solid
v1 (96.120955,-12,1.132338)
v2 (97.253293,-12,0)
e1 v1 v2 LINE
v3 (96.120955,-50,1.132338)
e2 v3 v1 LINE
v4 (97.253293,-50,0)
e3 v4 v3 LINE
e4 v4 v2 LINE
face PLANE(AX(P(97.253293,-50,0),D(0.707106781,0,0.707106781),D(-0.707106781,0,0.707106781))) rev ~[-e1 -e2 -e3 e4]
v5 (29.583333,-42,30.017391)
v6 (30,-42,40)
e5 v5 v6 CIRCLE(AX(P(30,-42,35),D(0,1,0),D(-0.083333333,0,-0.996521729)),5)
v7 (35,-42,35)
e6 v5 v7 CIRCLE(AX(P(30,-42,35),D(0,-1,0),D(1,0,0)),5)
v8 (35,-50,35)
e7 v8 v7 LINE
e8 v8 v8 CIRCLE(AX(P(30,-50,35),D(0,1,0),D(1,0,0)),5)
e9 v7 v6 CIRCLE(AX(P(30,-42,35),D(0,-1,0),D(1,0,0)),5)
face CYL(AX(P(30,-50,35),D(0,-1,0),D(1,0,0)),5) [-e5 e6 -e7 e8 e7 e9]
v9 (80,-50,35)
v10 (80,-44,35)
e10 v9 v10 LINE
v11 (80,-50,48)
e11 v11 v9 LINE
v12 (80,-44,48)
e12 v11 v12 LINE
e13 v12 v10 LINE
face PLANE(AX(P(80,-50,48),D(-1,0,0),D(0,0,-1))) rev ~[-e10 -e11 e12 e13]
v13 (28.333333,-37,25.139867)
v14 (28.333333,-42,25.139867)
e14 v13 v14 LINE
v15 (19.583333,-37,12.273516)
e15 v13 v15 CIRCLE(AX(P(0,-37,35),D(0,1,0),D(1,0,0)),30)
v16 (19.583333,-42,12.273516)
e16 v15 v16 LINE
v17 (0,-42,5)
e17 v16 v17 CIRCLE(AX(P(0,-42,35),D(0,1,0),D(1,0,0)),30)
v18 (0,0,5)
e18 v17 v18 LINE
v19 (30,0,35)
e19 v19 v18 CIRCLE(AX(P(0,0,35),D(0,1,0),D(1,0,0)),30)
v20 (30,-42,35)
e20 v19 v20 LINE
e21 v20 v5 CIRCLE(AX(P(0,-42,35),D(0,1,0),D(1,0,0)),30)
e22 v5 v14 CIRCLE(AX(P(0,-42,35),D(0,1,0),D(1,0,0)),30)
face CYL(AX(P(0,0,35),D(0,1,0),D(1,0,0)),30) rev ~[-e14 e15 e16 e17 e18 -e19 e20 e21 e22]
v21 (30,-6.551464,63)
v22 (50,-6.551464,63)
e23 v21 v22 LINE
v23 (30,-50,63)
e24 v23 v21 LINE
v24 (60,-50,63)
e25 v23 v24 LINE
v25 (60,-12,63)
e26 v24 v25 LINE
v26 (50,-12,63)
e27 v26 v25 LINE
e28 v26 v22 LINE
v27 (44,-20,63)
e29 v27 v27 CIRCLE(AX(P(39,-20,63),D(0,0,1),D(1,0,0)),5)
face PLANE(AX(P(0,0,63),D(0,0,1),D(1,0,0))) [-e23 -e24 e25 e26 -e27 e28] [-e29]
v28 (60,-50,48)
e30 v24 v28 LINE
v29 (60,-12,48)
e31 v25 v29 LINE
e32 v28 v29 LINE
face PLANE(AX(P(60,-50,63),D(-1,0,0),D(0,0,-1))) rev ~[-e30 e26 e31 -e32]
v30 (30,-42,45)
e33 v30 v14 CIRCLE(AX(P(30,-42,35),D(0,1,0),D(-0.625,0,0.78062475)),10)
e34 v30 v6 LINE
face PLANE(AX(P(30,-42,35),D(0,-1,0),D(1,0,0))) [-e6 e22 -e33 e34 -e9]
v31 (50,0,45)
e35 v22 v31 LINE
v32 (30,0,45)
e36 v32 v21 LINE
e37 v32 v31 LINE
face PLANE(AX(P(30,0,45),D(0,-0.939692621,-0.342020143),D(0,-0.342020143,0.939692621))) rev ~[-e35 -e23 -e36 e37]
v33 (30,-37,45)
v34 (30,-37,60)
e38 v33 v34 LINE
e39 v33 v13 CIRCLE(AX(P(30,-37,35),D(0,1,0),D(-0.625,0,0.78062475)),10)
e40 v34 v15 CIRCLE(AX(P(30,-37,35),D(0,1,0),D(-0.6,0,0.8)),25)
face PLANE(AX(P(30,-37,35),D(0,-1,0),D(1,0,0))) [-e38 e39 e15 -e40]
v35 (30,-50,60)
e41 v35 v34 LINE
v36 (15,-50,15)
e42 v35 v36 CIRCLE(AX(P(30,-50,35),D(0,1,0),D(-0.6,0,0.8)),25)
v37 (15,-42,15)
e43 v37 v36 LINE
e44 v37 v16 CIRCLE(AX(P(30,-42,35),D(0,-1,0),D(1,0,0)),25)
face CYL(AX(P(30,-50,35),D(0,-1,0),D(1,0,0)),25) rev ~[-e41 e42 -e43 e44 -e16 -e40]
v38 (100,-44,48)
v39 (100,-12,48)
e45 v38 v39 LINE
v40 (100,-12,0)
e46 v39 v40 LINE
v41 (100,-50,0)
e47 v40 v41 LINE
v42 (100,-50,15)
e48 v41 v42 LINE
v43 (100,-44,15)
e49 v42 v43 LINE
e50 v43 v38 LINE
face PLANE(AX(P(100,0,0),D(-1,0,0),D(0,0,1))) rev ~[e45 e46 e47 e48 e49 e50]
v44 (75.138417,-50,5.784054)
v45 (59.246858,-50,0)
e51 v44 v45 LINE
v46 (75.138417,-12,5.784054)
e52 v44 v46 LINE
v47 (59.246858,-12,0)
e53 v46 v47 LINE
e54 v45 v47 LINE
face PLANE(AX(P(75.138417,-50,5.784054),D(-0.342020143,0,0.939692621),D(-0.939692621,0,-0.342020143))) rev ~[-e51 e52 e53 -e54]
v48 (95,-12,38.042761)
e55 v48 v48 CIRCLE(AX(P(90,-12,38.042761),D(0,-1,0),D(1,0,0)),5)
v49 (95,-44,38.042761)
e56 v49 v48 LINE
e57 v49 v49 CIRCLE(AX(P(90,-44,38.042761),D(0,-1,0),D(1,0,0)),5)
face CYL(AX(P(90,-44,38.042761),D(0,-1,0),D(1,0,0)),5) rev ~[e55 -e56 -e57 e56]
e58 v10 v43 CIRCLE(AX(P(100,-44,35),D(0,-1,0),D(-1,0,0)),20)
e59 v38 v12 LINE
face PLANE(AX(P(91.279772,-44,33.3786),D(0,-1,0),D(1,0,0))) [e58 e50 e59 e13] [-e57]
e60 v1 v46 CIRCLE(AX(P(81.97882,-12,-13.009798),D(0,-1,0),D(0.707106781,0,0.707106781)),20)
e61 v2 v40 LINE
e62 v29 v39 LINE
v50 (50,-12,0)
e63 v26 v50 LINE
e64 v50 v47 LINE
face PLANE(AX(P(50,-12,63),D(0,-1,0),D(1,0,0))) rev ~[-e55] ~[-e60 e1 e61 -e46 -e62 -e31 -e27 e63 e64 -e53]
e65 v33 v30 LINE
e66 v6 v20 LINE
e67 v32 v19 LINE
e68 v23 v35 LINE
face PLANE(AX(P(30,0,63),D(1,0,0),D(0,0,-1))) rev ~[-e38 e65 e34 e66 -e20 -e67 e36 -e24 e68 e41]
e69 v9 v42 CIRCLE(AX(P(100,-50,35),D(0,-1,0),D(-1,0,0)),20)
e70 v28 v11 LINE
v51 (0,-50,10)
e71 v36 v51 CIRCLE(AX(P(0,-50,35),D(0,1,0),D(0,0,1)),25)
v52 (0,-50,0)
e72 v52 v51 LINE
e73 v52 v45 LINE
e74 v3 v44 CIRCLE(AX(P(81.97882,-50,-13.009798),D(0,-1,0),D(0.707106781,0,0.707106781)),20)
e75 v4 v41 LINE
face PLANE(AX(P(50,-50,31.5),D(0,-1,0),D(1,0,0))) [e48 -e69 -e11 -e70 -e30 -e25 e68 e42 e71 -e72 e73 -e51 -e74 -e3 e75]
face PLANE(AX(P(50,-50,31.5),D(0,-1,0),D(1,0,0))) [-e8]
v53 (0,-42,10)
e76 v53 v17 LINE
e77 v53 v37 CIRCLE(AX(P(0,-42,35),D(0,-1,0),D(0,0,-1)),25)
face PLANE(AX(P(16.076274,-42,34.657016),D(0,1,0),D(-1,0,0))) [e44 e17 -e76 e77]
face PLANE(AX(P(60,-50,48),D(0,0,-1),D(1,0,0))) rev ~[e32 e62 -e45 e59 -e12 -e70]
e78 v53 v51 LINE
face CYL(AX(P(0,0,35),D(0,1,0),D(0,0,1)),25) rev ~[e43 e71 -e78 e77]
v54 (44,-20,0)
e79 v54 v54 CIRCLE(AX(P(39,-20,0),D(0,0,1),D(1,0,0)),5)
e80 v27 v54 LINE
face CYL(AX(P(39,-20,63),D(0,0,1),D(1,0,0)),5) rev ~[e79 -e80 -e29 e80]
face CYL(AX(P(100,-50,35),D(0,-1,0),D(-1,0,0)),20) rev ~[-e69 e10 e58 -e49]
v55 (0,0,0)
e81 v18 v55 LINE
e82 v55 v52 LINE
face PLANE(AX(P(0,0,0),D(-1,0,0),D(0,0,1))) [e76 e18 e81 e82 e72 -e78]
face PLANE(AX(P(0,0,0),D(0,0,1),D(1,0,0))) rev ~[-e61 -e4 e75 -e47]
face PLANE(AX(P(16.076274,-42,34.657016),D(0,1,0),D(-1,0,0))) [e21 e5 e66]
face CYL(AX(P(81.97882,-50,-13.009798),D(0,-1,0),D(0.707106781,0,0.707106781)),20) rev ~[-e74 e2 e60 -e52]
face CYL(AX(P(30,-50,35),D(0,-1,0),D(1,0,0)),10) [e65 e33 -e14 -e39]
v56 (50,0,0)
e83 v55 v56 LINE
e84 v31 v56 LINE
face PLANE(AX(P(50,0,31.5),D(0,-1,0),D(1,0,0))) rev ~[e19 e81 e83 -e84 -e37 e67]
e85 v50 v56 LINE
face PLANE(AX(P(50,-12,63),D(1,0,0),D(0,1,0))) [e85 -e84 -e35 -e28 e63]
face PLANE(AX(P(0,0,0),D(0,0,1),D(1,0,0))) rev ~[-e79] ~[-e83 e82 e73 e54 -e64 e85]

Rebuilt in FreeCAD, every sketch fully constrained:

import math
import FreeCAD as App
import Part
import Sketcher
from FreeCAD import Vector
Q = App.Units.Quantity


def add_polygon(sketch, points):
    """Adds a closed chain of lines whose ends are joined by coincident constraints."""
    first, n = sketch.GeometryCount, len(points)
    for a, b in zip(points, points[1:] + points[:1]):
        sketch.addGeometry(Part.LineSegment(App.Vector(*a, 0), App.Vector(*b, 0)), False)
    for i in range(n):
        sketch.addConstraint(Sketcher.Constraint("Coincident", first + i, 2, first + (i + 1) % n, 1))

doc = App.newDocument("Part")
body = doc.addObject("PartDesign::Body", "Body")

# Sketch on XZ plane
sketch1 = body.newObject("Sketcher::SketchObject", "Sketch")
sketch1.AttachmentSupport = (doc.getObject("XZ_Plane"), [""])
sketch1.MapMode = "FlatFace"
add_polygon(sketch1, [(0, 63), (0, 0), (100, 0), (100, 63)])  # lines 0-3
sketch1.addConstraint([
    Sketcher.Constraint("Vertical", 0),
    Sketcher.Constraint("Horizontal", 1),
    Sketcher.Constraint("Vertical", 2),
    Sketcher.Constraint("Horizontal", 3),
    Sketcher.Constraint("Coincident", 0, 2, -1, 1),
    Sketcher.Constraint("DistanceX", 1, 1, 1, 2, 100.0),
    Sketcher.Constraint("DistanceY", 0, 2, 0, 1, 63.0),
])
pad1 = body.newObject("PartDesign::Pad", "Pad")
pad1.Profile = sketch1
pad1.Length = 50

# Sketch on XZ plane
sketch2 = body.newObject("Sketcher::SketchObject", "Sketch001")
sketch2.AttachmentSupport = (doc.getObject("XZ_Plane"), [""])
sketch2.MapMode = "FlatFace"
sketch2.AttachmentOffset = App.Placement(Vector(0, 0, 50), App.Rotation())
sketch2.addGeometry([
    Part.ArcOfCircle(Part.Circle(Vector(100, 35, 0), Vector(0, 0, 1), 20), math.radians(180), math.radians(270)),
    Part.LineSegment(Vector(100, 15, 0), Vector(100, 48, 0)),
    Part.LineSegment(Vector(100, 48, 0), Vector(80, 48, 0)),
    Part.LineSegment(Vector(80, 48, 0), Vector(80, 35, 0)),
], False)
sketch2.addConstraint([
    Sketcher.Constraint("Coincident", 0, 2, 1, 1),
    Sketcher.Constraint("Coincident", 1, 2, 2, 1),
    Sketcher.Constraint("Coincident", 2, 2, 3, 1),
    Sketcher.Constraint("Tangent", 3, 2, 0, 1),
    Sketcher.Constraint("Vertical", 1),
    Sketcher.Constraint("Horizontal", 2),
    Sketcher.Constraint("Vertical", 3),
    Sketcher.Constraint("Radius", 0, 20.0),
    Sketcher.Constraint("DistanceX", 2, 2, 2, 1, 20.0),
    Sketcher.Constraint("DistanceY", 1, 1, 1, 2, 33.0),
    Sketcher.Constraint("DistanceX", -1, 1, 0, 3, 100.0),
    Sketcher.Constraint("DistanceY", -1, 1, 0, 3, 35.0),
])
pocket1 = body.newObject("PartDesign::Pocket", "Pocket")
pocket1.Profile = sketch2
pocket1.Length = 6

# Sketch on XZ plane
sketch3 = body.newObject("Sketcher::SketchObject", "Sketch002")
sketch3.AttachmentSupport = (doc.getObject("XZ_Plane"), [""])
sketch3.MapMode = "FlatFace"
sketch3.AttachmentOffset = App.Placement(Vector(0, 0, 50), App.Rotation())
add_polygon(sketch3, [(100, 63), (60, 63), (60, 48), (100, 48)])  # lines 0-3
sketch3.addConstraint([
    Sketcher.Constraint("Horizontal", 0),
    Sketcher.Constraint("Vertical", 1),
    Sketcher.Constraint("Horizontal", 2),
    Sketcher.Constraint("Vertical", 3),
    Sketcher.Constraint("DistanceX", 0, 2, 0, 1, 40.0),
    Sketcher.Constraint("DistanceY", 1, 2, 1, 1, 15.0),
    Sketcher.Constraint("DistanceX", -1, 1, 0, 2, 60.0),
    Sketcher.Constraint("DistanceY", -1, 1, 0, 2, 63.0),
])
pocket2 = body.newObject("PartDesign::Pocket", "Pocket001")
pocket2.Profile = sketch3
pocket2.Length = 50

# Sketch on XZ plane
sketch4 = body.newObject("Sketcher::SketchObject", "Sketch003")
sketch4.AttachmentSupport = (doc.getObject("XZ_Plane"), [""])
sketch4.MapMode = "FlatFace"
sketch4.AttachmentOffset = App.Placement(Vector(0, 0, 50), App.Rotation())
sketch4.addGeometry([
    Part.LineSegment(Vector(75.1, 5.8, 0), Vector(59.2, 0, 0)),
    Part.LineSegment(Vector(59.2, 0, 0), Vector(97.3, 0, 0)),
    Part.LineSegment(Vector(97.3, 0, 0), Vector(96.1, 1.1, 0)),
    Part.ArcOfCircle(Part.Circle(Vector(82, -13, 0), Vector(0, 0, 1), 20), math.radians(45), math.radians(110)),
], False)
sketch4.addConstraint([
    Sketcher.Constraint("Coincident", 0, 2, 1, 1),
    Sketcher.Constraint("Coincident", 1, 2, 2, 1),
    Sketcher.Constraint("Tangent", 2, 2, 3, 1),
    Sketcher.Constraint("Tangent", 3, 2, 0, 1),
    Sketcher.Constraint("Horizontal", 1),
    Sketcher.Constraint("PointOnObject", 0, 2, -1),
    Sketcher.Constraint("Radius", 3, 20.0),
    Sketcher.Constraint("Angle", 0, Q("-160 deg")),
    Sketcher.Constraint("Angle", 2, Q("135 deg")),
    Sketcher.Constraint("DistanceX", 1, 1, 1, 2, 38.006435),
    Sketcher.Constraint("DistanceX", -1, 1, 3, 3, 81.97882),
])
pocket3 = body.newObject("PartDesign::Pocket", "Pocket002")
pocket3.Profile = sketch4
pocket3.Length = 50

# Sketch on XZ plane
sketch5 = body.newObject("Sketcher::SketchObject", "Sketch004")
sketch5.AttachmentSupport = (doc.getObject("XZ_Plane"), [""])
sketch5.MapMode = "FlatFace"
sketch5.AttachmentOffset = App.Placement(Vector(0, 0, 50), App.Rotation())
sketch5.addGeometry([
    Part.Circle(Vector(30, 35, 0), Vector(0, 0, 1), 10),
    Part.Circle(Vector(30, 35, 0), Vector(0, 0, 1), 5),
], False)
sketch5.addConstraint([
    Sketcher.Constraint("Coincident", 1, 3, 0, 3),
    Sketcher.Constraint("Diameter", 0, 20.0),
    Sketcher.Constraint("Diameter", 1, 10.0),
    Sketcher.Constraint("DistanceX", -1, 1, 0, 3, 30.0),
    Sketcher.Constraint("DistanceY", -1, 1, 0, 3, 35.0),
])
pocket4 = body.newObject("PartDesign::Pocket", "Pocket003")
pocket4.Profile = sketch5
pocket4.Length = 8

# Sketch on XZ plane
sketch6 = body.newObject("Sketcher::SketchObject", "Sketch005")
sketch6.AttachmentSupport = (doc.getObject("XZ_Plane"), [""])
sketch6.MapMode = "FlatFace"
sketch6.AttachmentOffset = App.Placement(Vector(0, 0, 50), App.Rotation())
sketch6.addGeometry([
    Part.Circle(Vector(30, 35, 0), Vector(0, 0, 1), 25),
    Part.Circle(Vector(30, 35, 0), Vector(0, 0, 1), 10),
], False)
sketch6.addConstraint([
    Sketcher.Constraint("Coincident", 1, 3, 0, 3),
    Sketcher.Constraint("Diameter", 0, 50.0),
    Sketcher.Constraint("Diameter", 1, 20.0),
    Sketcher.Constraint("DistanceX", -1, 1, 0, 3, 30.0),
    Sketcher.Constraint("DistanceY", -1, 1, 0, 3, 35.0),
])
pocket5 = body.newObject("PartDesign::Pocket", "Pocket004")
pocket5.Profile = sketch6
pocket5.Length = 13

# Sketch on XY plane
sketch7 = body.newObject("Sketcher::SketchObject", "Sketch006")
sketch7.AttachmentSupport = (doc.getObject("XY_Plane"), [""])
sketch7.MapMode = "FlatFace"
sketch7.AttachmentOffset = App.Placement(Vector(0, 0, 63), App.Rotation())
add_polygon(sketch7, [(50, 0), (50, -12), (60, -12), (60, 0)])  # lines 0-3
sketch7.addConstraint([
    Sketcher.Constraint("Vertical", 0),
    Sketcher.Constraint("Horizontal", 1),
    Sketcher.Constraint("Vertical", 2),
    Sketcher.Constraint("Horizontal", 3),
    Sketcher.Constraint("PointOnObject", 2, 2, -1),
    Sketcher.Constraint("DistanceX", 1, 1, 1, 2, 10.0),
    Sketcher.Constraint("DistanceY", 0, 2, 0, 1, 12.0),
    Sketcher.Constraint("DistanceX", -1, 1, 0, 2, 50.0),
])
pocket6 = body.newObject("PartDesign::Pocket", "Pocket005")
pocket6.Profile = sketch7
pocket6.Length = 63

# Sketch on XY plane
sketch8 = body.newObject("Sketcher::SketchObject", "Sketch007")
sketch8.AttachmentSupport = (doc.getObject("XY_Plane"), [""])
sketch8.MapMode = "FlatFace"
sketch8.AttachmentOffset = App.Placement(Vector(0, 0, 48), App.Rotation())
add_polygon(sketch8, [(60, 0), (60, -12), (100, -12), (100, 0)])  # lines 0-3
sketch8.addConstraint([
    Sketcher.Constraint("Vertical", 0),
    Sketcher.Constraint("Horizontal", 1),
    Sketcher.Constraint("Vertical", 2),
    Sketcher.Constraint("Horizontal", 3),
    Sketcher.Constraint("PointOnObject", 2, 2, -1),
    Sketcher.Constraint("DistanceX", 1, 1, 1, 2, 40.0),
    Sketcher.Constraint("DistanceY", 0, 2, 0, 1, 12.0),
    Sketcher.Constraint("DistanceX", -1, 1, 0, 2, 60.0),
])
pocket7 = body.newObject("PartDesign::Pocket", "Pocket006")
pocket7.Profile = sketch8
pocket7.Length = 63

# Sketch on XZ plane
sketch9 = body.newObject("Sketcher::SketchObject", "Sketch008")
sketch9.AttachmentSupport = (doc.getObject("XZ_Plane"), [""])
sketch9.MapMode = "FlatFace"
sketch9.AttachmentOffset = App.Placement(Vector(0, 0, 44), App.Rotation())
sketch9.addGeometry(Part.Circle(Vector(90, 38, 0), Vector(0, 0, 1), 5), False)
sketch9.addConstraint([
    Sketcher.Constraint("Diameter", 0, 10.0),
    Sketcher.Constraint("DistanceX", -1, 1, 0, 3, 90.0),
    Sketcher.Constraint("DistanceY", -1, 1, 0, 3, 38.042761),
])
pocket8 = body.newObject("PartDesign::Pocket", "Pocket007")
pocket8.Profile = sketch9
pocket8.Length = 50

# Sketch on XZ plane
sketch10 = body.newObject("Sketcher::SketchObject", "Sketch009")
sketch10.AttachmentSupport = (doc.getObject("XZ_Plane"), [""])
sketch10.MapMode = "FlatFace"
sketch10.addGeometry([
    Part.ArcOfCircle(Part.Circle(Vector(0, 35, 0), Vector(0, 0, 1), 25), math.radians(-90), math.radians(90)),
    Part.ArcOfCircle(Part.Circle(Vector(0, 35, 0), Vector(0, 0, 1), 25), math.radians(180), math.radians(270)),
    Part.ArcOfCircle(Part.Circle(Vector(0, 35, 0), Vector(0, 0, 1), 25), math.radians(90), math.radians(180)),
], False)
sketch10.addConstraint([
    Sketcher.Constraint("Tangent", 0, 1, 1, 2),
    Sketcher.Constraint("Tangent", 1, 1, 2, 2),
    Sketcher.Constraint("Tangent", 2, 1, 0, 2),
    Sketcher.Constraint("PointOnObject", 0, 3, -2),
    Sketcher.Constraint("PointOnObject", 0, 1, -2),
    Sketcher.Constraint("PointOnObject", 2, 1, -2),
    Sketcher.Constraint("Horizontal", 2, 3, 1, 1),
    Sketcher.Constraint("Radius", 0, 25.0),
    Sketcher.Constraint("DistanceY", -1, 1, 0, 3, 35.0),
])
pocket9 = body.newObject("PartDesign::Pocket", "Pocket008")
pocket9.Profile = sketch10
pocket9.Length = 50
pocket9.Reversed = True

# Sketch on XZ plane
sketch11 = body.newObject("Sketcher::SketchObject", "Sketch010")
sketch11.AttachmentSupport = (doc.getObject("XZ_Plane"), [""])
sketch11.MapMode = "FlatFace"
sketch11.addGeometry([
    Part.ArcOfCircle(Part.Circle(Vector(0, 35, 0), Vector(0, 0, 1), 30), math.radians(0), math.radians(69)),  # 0
    Part.ArcOfCircle(Part.Circle(Vector(0, 35, 0), Vector(0, 0, 1), 30), math.radians(180), math.radians(360)),  # 1
    Part.ArcOfCircle(Part.Circle(Vector(0, 35, 0), Vector(0, 0, 1), 30), math.radians(69), math.radians(180)),  # 2
    Part.ArcOfCircle(Part.Circle(Vector(0, 35, 0), Vector(0, 0, 1), 25), math.radians(-90), math.radians(90)),  # 3
    Part.ArcOfCircle(Part.Circle(Vector(0, 35, 0), Vector(0, 0, 1), 25), math.radians(90), math.radians(180)),  # 4
    Part.ArcOfCircle(Part.Circle(Vector(0, 35, 0), Vector(0, 0, 1), 25), math.radians(180), math.radians(270)),  # 5
], False)
sketch11.addConstraint([
    Sketcher.Constraint("Tangent", 0, 1, 1, 2),
    Sketcher.Constraint("Tangent", 1, 1, 2, 2),
    Sketcher.Constraint("Tangent", 2, 1, 0, 2),
    Sketcher.Constraint("Tangent", 3, 2, 4, 1),
    Sketcher.Constraint("Tangent", 4, 2, 5, 1),
    Sketcher.Constraint("Tangent", 5, 2, 3, 1),
    Sketcher.Constraint("Coincident", 3, 3, 0, 3),
    Sketcher.Constraint("Symmetric", 0, 1, 1, 1, -2),
    Sketcher.Constraint("PointOnObject", 3, 2, -2),
    Sketcher.Constraint("PointOnObject", 5, 2, -2),
    Sketcher.Constraint("Horizontal", 5, 3, 0, 1),
    Sketcher.Constraint("Horizontal", 1, 1, 4, 2),
    Sketcher.Constraint("Radius", 0, 30.0),
    Sketcher.Constraint("Radius", 3, 25.0),
    Sketcher.Constraint("DistanceY", -1, 1, 0, 3, 35.0),
    Sketcher.Constraint("DistanceY", -1, 1, 2, 1, 63.0),
])
pocket10 = body.newObject("PartDesign::Pocket", "Pocket009")
pocket10.Profile = sketch11
pocket10.Length = 42

# Sketch on XZ plane
sketch12 = body.newObject("Sketcher::SketchObject", "Sketch011")
sketch12.AttachmentSupport = (doc.getObject("XZ_Plane"), [""])
sketch12.MapMode = "FlatFace"
sketch12.addGeometry([
    Part.ArcOfCircle(Part.Circle(Vector(0, 35, 0), Vector(0, 0, 1), 30), math.radians(180), math.radians(360)),  # 0
    Part.ArcOfCircle(Part.Circle(Vector(0, 35, 0), Vector(0, 0, 1), 30), math.radians(69), math.radians(180)),  # 1
    Part.LineSegment(Vector(11, 63, 0), Vector(30, 63, 0)),  # 2
    Part.LineSegment(Vector(30, 63, 0), Vector(30, 35, 0)),  # 3
    Part.ArcOfCircle(Part.Circle(Vector(0, 35, 0), Vector(0, 0, 1), 25), math.radians(-90), math.radians(90)),  # 4
    Part.ArcOfCircle(Part.Circle(Vector(0, 35, 0), Vector(0, 0, 1), 25), math.radians(90), math.radians(180)),  # 5
    Part.ArcOfCircle(Part.Circle(Vector(0, 35, 0), Vector(0, 0, 1), 25), math.radians(180), math.radians(270)),  # 6
], False)
sketch12.addConstraint([
    Sketcher.Constraint("Tangent", 0, 1, 1, 2),
    Sketcher.Constraint("Coincident", 1, 1, 2, 1),
    Sketcher.Constraint("Coincident", 2, 2, 3, 1),
    Sketcher.Constraint("Tangent", 3, 2, 0, 2),
    Sketcher.Constraint("Tangent", 4, 2, 5, 1),
    Sketcher.Constraint("Tangent", 5, 2, 6, 1),
    Sketcher.Constraint("Tangent", 6, 2, 4, 1),
    Sketcher.Constraint("Horizontal", 2),
    Sketcher.Constraint("Vertical", 3),
    Sketcher.Constraint("Coincident", 4, 3, 0, 3),
    Sketcher.Constraint("Equal", 0, 1),
    Sketcher.Constraint("Symmetric", 0, 1, 3, 2, -2),
    Sketcher.Constraint("PointOnObject", 4, 2, -2),
    Sketcher.Constraint("PointOnObject", 6, 2, -2),
    Sketcher.Constraint("Horizontal", 3, 2, 5, 2),
    Sketcher.Constraint("Radius", 0, 30.0),
    Sketcher.Constraint("Radius", 4, 25.0),
    Sketcher.Constraint("DistanceY", 3, 2, 3, 1, 28.0),
    Sketcher.Constraint("DistanceY", -1, 1, 0, 3, 35.0),
])
pocket11 = body.newObject("PartDesign::Pocket", "Pocket010")
pocket11.Profile = sketch12
pocket11.Length = 42
pocket11.Reversed = True

# Sketch on XY plane
sketch13 = body.newObject("Sketcher::SketchObject", "Sketch012")
sketch13.AttachmentSupport = (doc.getObject("XY_Plane"), [""])
sketch13.MapMode = "FlatFace"
sketch13.AttachmentOffset = App.Placement(Vector(0, 0, 63), App.Rotation())
add_polygon(sketch13, [(0, -42), (0, -50), (30, -50), (30, -42)])  # lines 0-3
sketch13.addConstraint([
    Sketcher.Constraint("Vertical", 0),
    Sketcher.Constraint("Horizontal", 1),
    Sketcher.Constraint("Vertical", 2),
    Sketcher.Constraint("Horizontal", 3),
    Sketcher.Constraint("PointOnObject", 0, 2, -2),
    Sketcher.Constraint("DistanceX", 1, 1, 1, 2, 30.0),
    Sketcher.Constraint("DistanceY", 0, 2, 0, 1, 8.0),
    Sketcher.Constraint("DistanceY", 0, 2, -1, 1, 50.0),
])
pocket12 = body.newObject("PartDesign::Pocket", "Pocket011")
pocket12.Profile = sketch13
pocket12.Length = 11.4

# Sketch on YZ plane
sketch14 = body.newObject("Sketcher::SketchObject", "Sketch013")
sketch14.AttachmentSupport = (doc.getObject("YZ_Plane"), [""])
sketch14.MapMode = "FlatFace"
sketch14.AttachmentOffset = App.Placement(Vector(0, 0, 30), App.Rotation())
add_polygon(sketch14, [(-7, 63), (0, 63), (0, 45)])  # lines 0-2
sketch14.addConstraint([
    Sketcher.Constraint("Horizontal", 0),
    Sketcher.Constraint("Vertical", 1),
    Sketcher.Constraint("PointOnObject", 0, 2, -2),
    Sketcher.Constraint("DistanceY", 1, 2, 1, 1, 18.0),
    Sketcher.Constraint("Angle", 2, Q("110 deg")),
    Sketcher.Constraint("DistanceY", -1, 1, 0, 2, 63.0),
])
pocket13 = body.newObject("PartDesign::Pocket", "Pocket012")
pocket13.Profile = sketch14
pocket13.Length = 100
pocket13.Reversed = True

# Sketch on XY plane
sketch15 = body.newObject("Sketcher::SketchObject", "Sketch014")
sketch15.AttachmentSupport = (doc.getObject("XY_Plane"), [""])
sketch15.MapMode = "FlatFace"
sketch15.AttachmentOffset = App.Placement(Vector(0, 0, 63), App.Rotation())
sketch15.addGeometry(Part.Circle(Vector(39, -20, 0), Vector(0, 0, 1), 5), False)
sketch15.addConstraint([
    Sketcher.Constraint("Diameter", 0, 10.0),
    Sketcher.Constraint("DistanceX", -1, 1, 0, 3, 39.0),
    Sketcher.Constraint("DistanceY", 0, 3, -1, 1, 20.0),
])
pocket14 = body.newObject("PartDesign::Pocket", "Pocket013")
pocket14.Profile = sketch15
pocket14.Length = 63

doc.recompute()
